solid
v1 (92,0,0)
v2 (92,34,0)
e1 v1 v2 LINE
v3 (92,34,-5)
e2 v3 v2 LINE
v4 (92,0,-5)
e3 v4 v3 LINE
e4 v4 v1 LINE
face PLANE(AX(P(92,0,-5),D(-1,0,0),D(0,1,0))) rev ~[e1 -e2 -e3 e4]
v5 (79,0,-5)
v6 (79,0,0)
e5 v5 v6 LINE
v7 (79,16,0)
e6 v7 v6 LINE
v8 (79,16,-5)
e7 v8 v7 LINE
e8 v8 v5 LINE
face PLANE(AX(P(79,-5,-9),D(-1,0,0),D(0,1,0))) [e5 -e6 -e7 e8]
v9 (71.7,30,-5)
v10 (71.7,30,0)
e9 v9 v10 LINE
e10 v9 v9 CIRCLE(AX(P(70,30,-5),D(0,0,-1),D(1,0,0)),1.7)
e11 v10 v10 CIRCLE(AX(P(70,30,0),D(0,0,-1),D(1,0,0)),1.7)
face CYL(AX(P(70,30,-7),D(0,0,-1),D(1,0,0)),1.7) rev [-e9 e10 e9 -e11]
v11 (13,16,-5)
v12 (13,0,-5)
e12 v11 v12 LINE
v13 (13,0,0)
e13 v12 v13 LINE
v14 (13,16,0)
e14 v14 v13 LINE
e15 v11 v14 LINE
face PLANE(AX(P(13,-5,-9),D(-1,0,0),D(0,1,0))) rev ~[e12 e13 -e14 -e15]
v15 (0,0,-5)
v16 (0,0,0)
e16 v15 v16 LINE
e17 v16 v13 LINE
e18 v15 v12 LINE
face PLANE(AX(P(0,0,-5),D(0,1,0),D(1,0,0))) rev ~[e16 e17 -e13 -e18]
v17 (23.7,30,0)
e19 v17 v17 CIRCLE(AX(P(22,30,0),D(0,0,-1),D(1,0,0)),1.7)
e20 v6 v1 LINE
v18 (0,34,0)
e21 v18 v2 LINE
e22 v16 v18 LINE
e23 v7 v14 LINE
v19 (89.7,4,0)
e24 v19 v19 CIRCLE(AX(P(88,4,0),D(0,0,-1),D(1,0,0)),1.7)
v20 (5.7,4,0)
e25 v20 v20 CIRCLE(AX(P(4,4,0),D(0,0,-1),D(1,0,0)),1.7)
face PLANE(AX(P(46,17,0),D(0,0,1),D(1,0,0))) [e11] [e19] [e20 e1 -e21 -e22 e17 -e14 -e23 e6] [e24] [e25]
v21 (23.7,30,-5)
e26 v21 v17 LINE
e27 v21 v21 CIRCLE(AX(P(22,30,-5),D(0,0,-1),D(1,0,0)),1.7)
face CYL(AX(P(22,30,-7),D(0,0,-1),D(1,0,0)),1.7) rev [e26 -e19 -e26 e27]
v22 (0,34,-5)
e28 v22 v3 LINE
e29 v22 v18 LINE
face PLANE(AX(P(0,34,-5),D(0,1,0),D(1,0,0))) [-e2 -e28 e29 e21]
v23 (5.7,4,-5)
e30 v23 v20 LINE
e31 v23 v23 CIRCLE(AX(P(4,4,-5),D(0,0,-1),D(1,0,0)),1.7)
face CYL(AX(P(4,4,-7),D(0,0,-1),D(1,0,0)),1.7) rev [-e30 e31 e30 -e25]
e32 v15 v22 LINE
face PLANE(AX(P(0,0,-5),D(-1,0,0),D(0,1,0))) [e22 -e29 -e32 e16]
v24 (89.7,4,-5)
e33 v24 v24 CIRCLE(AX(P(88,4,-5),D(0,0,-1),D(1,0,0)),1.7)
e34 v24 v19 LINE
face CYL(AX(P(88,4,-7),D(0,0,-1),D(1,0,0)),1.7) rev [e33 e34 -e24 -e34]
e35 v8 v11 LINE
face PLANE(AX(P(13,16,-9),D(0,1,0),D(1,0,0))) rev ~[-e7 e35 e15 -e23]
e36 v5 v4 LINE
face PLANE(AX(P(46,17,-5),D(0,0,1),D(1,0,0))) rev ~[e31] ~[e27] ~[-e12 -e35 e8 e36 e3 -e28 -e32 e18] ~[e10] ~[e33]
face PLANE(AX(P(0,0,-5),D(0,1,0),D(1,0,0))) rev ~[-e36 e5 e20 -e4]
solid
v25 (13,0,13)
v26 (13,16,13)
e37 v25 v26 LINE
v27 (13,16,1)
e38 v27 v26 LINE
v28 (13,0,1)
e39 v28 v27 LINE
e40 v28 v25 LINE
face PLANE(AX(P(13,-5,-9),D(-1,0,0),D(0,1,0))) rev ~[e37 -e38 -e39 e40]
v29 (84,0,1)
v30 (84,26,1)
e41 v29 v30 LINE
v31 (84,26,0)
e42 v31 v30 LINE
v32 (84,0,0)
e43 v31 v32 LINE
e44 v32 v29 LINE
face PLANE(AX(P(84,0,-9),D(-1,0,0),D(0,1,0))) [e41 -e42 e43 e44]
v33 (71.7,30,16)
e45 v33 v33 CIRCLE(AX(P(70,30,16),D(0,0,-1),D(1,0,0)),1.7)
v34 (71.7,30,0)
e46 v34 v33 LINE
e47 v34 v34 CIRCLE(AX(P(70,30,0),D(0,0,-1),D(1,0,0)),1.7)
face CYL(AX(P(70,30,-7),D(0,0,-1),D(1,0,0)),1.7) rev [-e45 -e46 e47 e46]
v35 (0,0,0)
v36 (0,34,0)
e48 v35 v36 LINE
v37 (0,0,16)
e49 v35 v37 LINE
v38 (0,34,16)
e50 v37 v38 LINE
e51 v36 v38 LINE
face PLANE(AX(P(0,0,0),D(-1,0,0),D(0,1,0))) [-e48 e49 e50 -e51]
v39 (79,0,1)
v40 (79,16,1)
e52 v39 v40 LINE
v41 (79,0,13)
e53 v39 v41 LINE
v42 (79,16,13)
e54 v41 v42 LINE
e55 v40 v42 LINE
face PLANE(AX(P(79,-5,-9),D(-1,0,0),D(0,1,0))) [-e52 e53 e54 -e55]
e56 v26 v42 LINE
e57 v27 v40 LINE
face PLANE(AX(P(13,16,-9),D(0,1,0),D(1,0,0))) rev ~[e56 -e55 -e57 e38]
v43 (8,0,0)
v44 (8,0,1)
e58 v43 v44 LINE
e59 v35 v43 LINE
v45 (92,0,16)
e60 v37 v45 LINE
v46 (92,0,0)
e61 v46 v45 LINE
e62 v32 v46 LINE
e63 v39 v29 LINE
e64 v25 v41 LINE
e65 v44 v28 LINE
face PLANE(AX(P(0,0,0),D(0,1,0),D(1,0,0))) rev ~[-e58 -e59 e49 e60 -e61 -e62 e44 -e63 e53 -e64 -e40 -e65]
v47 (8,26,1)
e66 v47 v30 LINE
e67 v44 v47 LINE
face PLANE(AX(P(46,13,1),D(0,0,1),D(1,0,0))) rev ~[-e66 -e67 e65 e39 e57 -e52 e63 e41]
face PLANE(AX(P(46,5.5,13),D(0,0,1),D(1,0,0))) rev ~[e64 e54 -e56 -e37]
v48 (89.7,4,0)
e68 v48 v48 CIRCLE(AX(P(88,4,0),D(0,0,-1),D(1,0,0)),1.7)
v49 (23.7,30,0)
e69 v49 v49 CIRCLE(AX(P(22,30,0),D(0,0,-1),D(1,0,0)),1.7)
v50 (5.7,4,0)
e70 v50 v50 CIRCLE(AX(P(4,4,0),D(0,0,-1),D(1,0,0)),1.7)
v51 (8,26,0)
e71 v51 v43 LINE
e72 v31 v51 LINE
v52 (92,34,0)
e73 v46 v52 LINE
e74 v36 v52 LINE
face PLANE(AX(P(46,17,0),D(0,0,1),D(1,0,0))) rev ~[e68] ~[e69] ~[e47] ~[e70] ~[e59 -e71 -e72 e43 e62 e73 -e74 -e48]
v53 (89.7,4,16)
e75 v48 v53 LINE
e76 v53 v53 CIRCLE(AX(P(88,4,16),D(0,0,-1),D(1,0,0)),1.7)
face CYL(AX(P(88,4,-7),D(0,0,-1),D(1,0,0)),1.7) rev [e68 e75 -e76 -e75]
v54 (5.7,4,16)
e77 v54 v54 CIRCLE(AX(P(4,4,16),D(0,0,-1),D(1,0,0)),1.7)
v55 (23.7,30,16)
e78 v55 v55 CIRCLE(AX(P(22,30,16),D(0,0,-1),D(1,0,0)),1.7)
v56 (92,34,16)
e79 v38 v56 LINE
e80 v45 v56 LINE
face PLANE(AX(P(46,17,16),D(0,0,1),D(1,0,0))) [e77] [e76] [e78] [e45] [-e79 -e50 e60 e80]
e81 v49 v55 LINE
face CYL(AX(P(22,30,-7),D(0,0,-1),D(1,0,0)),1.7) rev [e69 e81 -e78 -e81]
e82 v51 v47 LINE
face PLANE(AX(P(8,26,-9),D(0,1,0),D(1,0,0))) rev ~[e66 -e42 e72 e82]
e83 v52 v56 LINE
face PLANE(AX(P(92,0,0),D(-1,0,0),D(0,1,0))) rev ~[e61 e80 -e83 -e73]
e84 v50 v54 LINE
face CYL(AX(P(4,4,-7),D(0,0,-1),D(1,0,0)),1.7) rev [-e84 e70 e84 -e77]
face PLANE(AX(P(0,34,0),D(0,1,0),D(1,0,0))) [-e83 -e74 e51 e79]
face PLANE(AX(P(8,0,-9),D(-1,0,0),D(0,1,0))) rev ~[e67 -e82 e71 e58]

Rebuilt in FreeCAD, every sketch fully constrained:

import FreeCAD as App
import Part
import Sketcher
from FreeCAD import Vector
Q = App.Units.Quantity


def add_polygon(sketch, points):
    """Adds a closed chain of lines whose ends are joined by coincident constraints."""
    first, n = sketch.GeometryCount, len(points)
    for a, b in zip(points, points[1:] + points[:1]):
        sketch.addGeometry(Part.LineSegment(App.Vector(*a, 0), App.Vector(*b, 0)), False)
    for i in range(n):
        sketch.addConstraint(Sketcher.Constraint("Coincident", first + i, 2, first + (i + 1) % n, 1))

doc = App.newDocument("Part")
body = doc.addObject("PartDesign::Body", "Body")

# Sketch on XY plane
sketch1 = body.newObject("Sketcher::SketchObject", "Sketch")
sketch1.AttachmentSupport = (doc.getObject("XY_Plane"), [""])
sketch1.MapMode = "FlatFace"
sketch1.AttachmentOffset = App.Placement(Vector(0, 0, -7), App.Rotation())
sketch1.addGeometry(Part.Circle(Vector(70, 30, 0), Vector(0, 0, 1), 1.7), False)
sketch1.addConstraint([
    Sketcher.Constraint("Diameter", 0, Q("3.4 mm")),
    Sketcher.Constraint("DistanceX", -1, 1, 0, 3, Q("70 mm")),
    Sketcher.Constraint("DistanceY", -1, 1, 0, 3, Q("30 mm")),
])
pad1 = body.newObject("PartDesign::Pad", "Pad")
pad1.Profile = sketch1
pad1.Length = 25
body2 = doc.addObject("PartDesign::Body", "Body001")

# Sketch on XY plane
sketch2 = body2.newObject("Sketcher::SketchObject", "Sketch001")
sketch2.AttachmentSupport = (doc.getObject("XY_Plane001"), [""])
sketch2.MapMode = "FlatFace"
sketch2.AttachmentOffset = App.Placement(Vector(0, 0, -7), App.Rotation())
sketch2.addGeometry(Part.Circle(Vector(22, 30, 0), Vector(0, 0, 1), 1.7), False)
sketch2.addConstraint([
    Sketcher.Constraint("Diameter", 0, Q("3.4 mm")),
    Sketcher.Constraint("DistanceX", -1, 1, 0, 3, Q("22 mm")),
    Sketcher.Constraint("DistanceY", -1, 1, 0, 3, Q("30 mm")),
])
pad2 = body2.newObject("PartDesign::Pad", "Pad001")
pad2.Profile = sketch2
pad2.Length = 25
body3 = doc.addObject("PartDesign::Body", "Body002")

# Sketch on XY plane
sketch3 = body3.newObject("Sketcher::SketchObject", "Sketch002")
sketch3.AttachmentSupport = (doc.getObject("XY_Plane002"), [""])
sketch3.MapMode = "FlatFace"
sketch3.AttachmentOffset = App.Placement(Vector(0, 0, -7), App.Rotation())
sketch3.addGeometry(Part.Circle(Vector(88, 4, 0), Vector(0, 0, 1), 1.7), False)
sketch3.addConstraint([
    Sketcher.Constraint("Diameter", 0, Q("3.4 mm")),
    Sketcher.Constraint("DistanceX", -1, 1, 0, 3, Q("88 mm")),
    Sketcher.Constraint("DistanceY", -1, 1, 0, 3, Q("4 mm")),
])
pad3 = body3.newObject("PartDesign::Pad", "Pad002")
pad3.Profile = sketch3
pad3.Length = 25
body4 = doc.addObject("PartDesign::Body", "Body003")
body4.AllowCompound = True

# Sketch on XY plane
sketch4 = body4.newObject("Sketcher::SketchObject", "Sketch003")
sketch4.AttachmentSupport = (doc.getObject("XY_Plane003"), [""])
sketch4.MapMode = "FlatFace"
sketch4.AttachmentOffset = App.Placement(Vector(0, 0, -7), App.Rotation())
sketch4.addGeometry(Part.Circle(Vector(4, 4, 0), Vector(0, 0, 1), 1.7), False)
sketch4.addConstraint([
    Sketcher.Constraint("Diameter", 0, Q("3.4 mm")),
    Sketcher.Constraint("DistanceX", -1, 1, 0, 3, Q("4 mm")),
    Sketcher.Constraint("DistanceY", -1, 1, 0, 3, Q("4 mm")),
])
pad4 = body4.newObject("PartDesign::Pad", "Pad003")
pad4.Profile = sketch4
pad4.Length = 25
doc.recompute()

boolean = body4.newObject("PartDesign::Boolean", "Boolean")
boolean.Type = "Fuse"
boolean.addObjects([body])
doc.recompute()

boolean2 = body4.newObject("PartDesign::Boolean", "Boolean001")
boolean2.Type = "Fuse"
boolean2.addObjects([body2])
doc.recompute()

boolean3 = body4.newObject("PartDesign::Boolean", "Boolean002")
boolean3.Type = "Fuse"
boolean3.addObjects([body3])
body5 = doc.addObject("PartDesign::Body", "Body004")

# Sketch on XY plane
sketch5 = body5.newObject("Sketcher::SketchObject", "Sketch004")
sketch5.AttachmentSupport = (doc.getObject("XY_Plane004"), [""])
sketch5.MapMode = "FlatFace"
sketch5.AttachmentOffset = App.Placement(Vector(0, 0, -9), App.Rotation())
add_polygon(sketch5, [(0, 26), (0, 0), (76, 0), (76, 26)])  # lines 0-3
sketch5.addConstraint([
    Sketcher.Constraint("Vertical", 0),
    Sketcher.Constraint("Horizontal", 1),
    Sketcher.Constraint("Vertical", 2),
    Sketcher.Constraint("Horizontal", 3),
    Sketcher.Constraint("Coincident", 0, 2, -1, 1),
    Sketcher.Constraint("DistanceX", 1, 1, 1, 2, Q("76 mm")),
    Sketcher.Constraint("DistanceY", 0, 2, 0, 1, Q("26 mm")),
])
pad5 = body5.newObject("PartDesign::Pad", "Pad004")
pad5.Profile = sketch5
pad5.Length = 10
body6 = doc.addObject("PartDesign::Body", "Body005")

# Sketch on XY plane
sketch6 = body6.newObject("Sketcher::SketchObject", "Sketch005")
sketch6.AttachmentSupport = (doc.getObject("XY_Plane005"), [""])
sketch6.MapMode = "FlatFace"
sketch6.AttachmentOffset = App.Placement(Vector(0, 0, -9), App.Rotation())
add_polygon(sketch6, [(5, 16), (5, -5), (71, -5), (71, 16)])  # lines 0-3
sketch6.addConstraint([
    Sketcher.Constraint("Vertical", 0),
    Sketcher.Constraint("Horizontal", 1),
    Sketcher.Constraint("Vertical", 2),
    Sketcher.Constraint("Horizontal", 3),
    Sketcher.Constraint("DistanceX", 1, 1, 1, 2, Q("66 mm")),
    Sketcher.Constraint("DistanceY", 0, 2, 0, 1, Q("21 mm")),
    Sketcher.Constraint("DistanceX", -1, 1, 0, 2, Q("5 mm")),
    Sketcher.Constraint("DistanceY", 0, 2, -1, 1, Q("5 mm")),
])
pad6 = body6.newObject("PartDesign::Pad", "Pad005")
pad6.Profile = sketch6
pad6.Length = 22
body7 = doc.addObject("PartDesign::Body", "Body006")

# Sketch on XY plane
sketch7 = body7.newObject("Sketcher::SketchObject", "Sketch006")
sketch7.AttachmentSupport = (doc.getObject("XY_Plane006"), [""])
sketch7.MapMode = "FlatFace"
add_polygon(sketch7, [(-8, 34), (-8, 0), (84, 0), (84, 34)])  # lines 0-3
sketch7.addConstraint([
    Sketcher.Constraint("Vertical", 0),
    Sketcher.Constraint("Horizontal", 1),
    Sketcher.Constraint("Vertical", 2),
    Sketcher.Constraint("Horizontal", 3),
    Sketcher.Constraint("PointOnObject", 0, 2, -1),
    Sketcher.Constraint("DistanceX", 1, 1, 1, 2, Q("92 mm")),
    Sketcher.Constraint("DistanceY", 0, 2, 0, 1, Q("34 mm")),
    Sketcher.Constraint("DistanceX", 0, 2, -1, 1, Q("8 mm")),
])
pad7 = body7.newObject("PartDesign::Pad", "Pad006")
pad7.Profile = sketch7
pad7.Length = 16
doc.recompute()

boolean4 = body7.newObject("PartDesign::Boolean", "Boolean003")
boolean4.Type = "Cut"
boolean4.addObjects([body6])
doc.recompute()

boolean5 = body7.newObject("PartDesign::Boolean", "Boolean004")
boolean5.Type = "Cut"
boolean5.addObjects([body5])
body8 = doc.addObject("PartDesign::Body", "Body007")
doc.recompute()

body7.Placement = App.Placement(Vector(8, 0, 0), App.Rotation(Vector(0, 0, 1), 0))
boolean6 = body8.newObject("PartDesign::Boolean", "Boolean005")
boolean6.Type = "Fuse"
boolean6.addObjects([body7])
doc.recompute()

boolean7 = body8.newObject("PartDesign::Boolean", "Boolean006")
boolean7.Type = "Cut"
boolean7.addObjects([body4])
body9 = doc.addObject("PartDesign::Body", "Body008")

# Sketch on XY plane
sketch8 = body9.newObject("Sketcher::SketchObject", "Sketch007")
sketch8.AttachmentSupport = (doc.getObject("XY_Plane008"), [""])
sketch8.MapMode = "FlatFace"
sketch8.AttachmentOffset = App.Placement(Vector(0, 0, -7), App.Rotation())
sketch8.addGeometry(Part.Circle(Vector(22, 30, 0), Vector(0, 0, 1), 1.7), False)
sketch8.addConstraint([
    Sketcher.Constraint("Diameter", 0, Q("3.4 mm")),
    Sketcher.Constraint("DistanceX", -1, 1, 0, 3, Q("22 mm")),
    Sketcher.Constraint("DistanceY", -1, 1, 0, 3, Q("30 mm")),
])
pad8 = body9.newObject("PartDesign::Pad", "Pad007")
pad8.Profile = sketch8
pad8.Length = 25
body10 = doc.addObject("PartDesign::Body", "Body009")

# Sketch on XY plane
sketch9 = body10.newObject("Sketcher::SketchObject", "Sketch008")
sketch9.AttachmentSupport = (doc.getObject("XY_Plane009"), [""])
sketch9.MapMode = "FlatFace"
sketch9.AttachmentOffset = App.Placement(Vector(0, 0, -7), App.Rotation())
sketch9.addGeometry(Part.Circle(Vector(70, 30, 0), Vector(0, 0, 1), 1.7), False)
sketch9.addConstraint([
    Sketcher.Constraint("Diameter", 0, Q("3.4 mm")),
    Sketcher.Constraint("DistanceX", -1, 1, 0, 3, Q("70 mm")),
    Sketcher.Constraint("DistanceY", -1, 1, 0, 3, Q("30 mm")),
])
pad9 = body10.newObject("PartDesign::Pad", "Pad008")
pad9.Profile = sketch9
pad9.Length = 25
body11 = doc.addObject("PartDesign::Body", "Body010")

# Sketch on XY plane
sketch10 = body11.newObject("Sketcher::SketchObject", "Sketch009")
sketch10.AttachmentSupport = (doc.getObject("XY_Plane010"), [""])
sketch10.MapMode = "FlatFace"
sketch10.AttachmentOffset = App.Placement(Vector(0, 0, -7), App.Rotation())
sketch10.addGeometry(Part.Circle(Vector(88, 4, 0), Vector(0, 0, 1), 1.7), False)
sketch10.addConstraint([
    Sketcher.Constraint("Diameter", 0, Q("3.4 mm")),
    Sketcher.Constraint("DistanceX", -1, 1, 0, 3, Q("88 mm")),
    Sketcher.Constraint("DistanceY", -1, 1, 0, 3, Q("4 mm")),
])
pad10 = body11.newObject("PartDesign::Pad", "Pad009")
pad10.Profile = sketch10
pad10.Length = 25
body12 = doc.addObject("PartDesign::Body", "Body011")
body12.AllowCompound = True

# Sketch on XY plane
sketch11 = body12.newObject("Sketcher::SketchObject", "Sketch010")
sketch11.AttachmentSupport = (doc.getObject("XY_Plane011"), [""])
sketch11.MapMode = "FlatFace"
sketch11.AttachmentOffset = App.Placement(Vector(0, 0, -7), App.Rotation())
sketch11.addGeometry(Part.Circle(Vector(4, 4, 0), Vector(0, 0, 1), 1.7), False)
sketch11.addConstraint([
    Sketcher.Constraint("Diameter", 0, Q("3.4 mm")),
    Sketcher.Constraint("DistanceX", -1, 1, 0, 3, Q("4 mm")),
    Sketcher.Constraint("DistanceY", -1, 1, 0, 3, Q("4 mm")),
])
pad11 = body12.newObject("PartDesign::Pad", "Pad010")
pad11.Profile = sketch11
pad11.Length = 25
doc.recompute()

boolean8 = body12.newObject("PartDesign::Boolean", "Boolean007")
boolean8.Type = "Fuse"
boolean8.addObjects([body9])
doc.recompute()

boolean9 = body12.newObject("PartDesign::Boolean", "Boolean008")
boolean9.Type = "Fuse"
boolean9.addObjects([body10])
doc.recompute()

boolean10 = body12.newObject("PartDesign::Boolean", "Boolean009")
boolean10.Type = "Fuse"
boolean10.addObjects([body11])
body13 = doc.addObject("PartDesign::Body", "Body012")

# Sketch on XY plane
sketch12 = body13.newObject("Sketcher::SketchObject", "Sketch011")
sketch12.AttachmentSupport = (doc.getObject("XY_Plane012"), [""])
sketch12.MapMode = "FlatFace"
sketch12.AttachmentOffset = App.Placement(Vector(0, 0, -9), App.Rotation())
add_polygon(sketch12, [(5, 16), (5, -5), (71, -5), (71, 16)])  # lines 0-3
sketch12.addConstraint([
    Sketcher.Constraint("Vertical", 0),
    Sketcher.Constraint("Horizontal", 1),
    Sketcher.Constraint("Vertical", 2),
    Sketcher.Constraint("Horizontal", 3),
    Sketcher.Constraint("DistanceX", 1, 1, 1, 2, Q("66 mm")),
    Sketcher.Constraint("DistanceY", 0, 2, 0, 1, Q("21 mm")),
    Sketcher.Constraint("DistanceX", -1, 1, 0, 2, Q("5 mm")),
    Sketcher.Constraint("DistanceY", 0, 2, -1, 1, Q("5 mm")),
])
pad12 = body13.newObject("PartDesign::Pad", "Pad011")
pad12.Profile = sketch12
pad12.Length = 22
body14 = doc.addObject("PartDesign::Body", "Body013")

# Sketch on XY plane
sketch13 = body14.newObject("Sketcher::SketchObject", "Sketch012")
sketch13.AttachmentSupport = (doc.getObject("XY_Plane013"), [""])
sketch13.MapMode = "FlatFace"
sketch13.AttachmentOffset = App.Placement(Vector(0, 0, -5), App.Rotation())
add_polygon(sketch13, [(-8, 34), (-8, 0), (84, 0), (84, 34)])  # lines 0-3
sketch13.addConstraint([
    Sketcher.Constraint("Vertical", 0),
    Sketcher.Constraint("Horizontal", 1),
    Sketcher.Constraint("Vertical", 2),
    Sketcher.Constraint("Horizontal", 3),
    Sketcher.Constraint("PointOnObject", 0, 2, -1),
    Sketcher.Constraint("DistanceX", 1, 1, 1, 2, Q("92 mm")),
    Sketcher.Constraint("DistanceY", 0, 2, 0, 1, Q("34 mm")),
    Sketcher.Constraint("DistanceX", 0, 2, -1, 1, Q("8 mm")),
])
pad13 = body14.newObject("PartDesign::Pad", "Pad012")
pad13.Profile = sketch13
pad13.Length = 5
doc.recompute()

boolean11 = body14.newObject("PartDesign::Boolean", "Boolean010")
boolean11.Type = "Cut"
boolean11.addObjects([body13])
body15 = doc.addObject("PartDesign::Body", "Body014")
doc.recompute()

body14.Placement = App.Placement(Vector(8, 0, 0), App.Rotation(Vector(0, 0, 1), 0))
boolean12 = body15.newObject("PartDesign::Boolean", "Boolean011")
boolean12.Type = "Fuse"
boolean12.addObjects([body14])
doc.recompute()

boolean13 = body15.newObject("PartDesign::Boolean", "Boolean012")
boolean13.Type = "Cut"
boolean13.addObjects([body12])

doc.recompute()
